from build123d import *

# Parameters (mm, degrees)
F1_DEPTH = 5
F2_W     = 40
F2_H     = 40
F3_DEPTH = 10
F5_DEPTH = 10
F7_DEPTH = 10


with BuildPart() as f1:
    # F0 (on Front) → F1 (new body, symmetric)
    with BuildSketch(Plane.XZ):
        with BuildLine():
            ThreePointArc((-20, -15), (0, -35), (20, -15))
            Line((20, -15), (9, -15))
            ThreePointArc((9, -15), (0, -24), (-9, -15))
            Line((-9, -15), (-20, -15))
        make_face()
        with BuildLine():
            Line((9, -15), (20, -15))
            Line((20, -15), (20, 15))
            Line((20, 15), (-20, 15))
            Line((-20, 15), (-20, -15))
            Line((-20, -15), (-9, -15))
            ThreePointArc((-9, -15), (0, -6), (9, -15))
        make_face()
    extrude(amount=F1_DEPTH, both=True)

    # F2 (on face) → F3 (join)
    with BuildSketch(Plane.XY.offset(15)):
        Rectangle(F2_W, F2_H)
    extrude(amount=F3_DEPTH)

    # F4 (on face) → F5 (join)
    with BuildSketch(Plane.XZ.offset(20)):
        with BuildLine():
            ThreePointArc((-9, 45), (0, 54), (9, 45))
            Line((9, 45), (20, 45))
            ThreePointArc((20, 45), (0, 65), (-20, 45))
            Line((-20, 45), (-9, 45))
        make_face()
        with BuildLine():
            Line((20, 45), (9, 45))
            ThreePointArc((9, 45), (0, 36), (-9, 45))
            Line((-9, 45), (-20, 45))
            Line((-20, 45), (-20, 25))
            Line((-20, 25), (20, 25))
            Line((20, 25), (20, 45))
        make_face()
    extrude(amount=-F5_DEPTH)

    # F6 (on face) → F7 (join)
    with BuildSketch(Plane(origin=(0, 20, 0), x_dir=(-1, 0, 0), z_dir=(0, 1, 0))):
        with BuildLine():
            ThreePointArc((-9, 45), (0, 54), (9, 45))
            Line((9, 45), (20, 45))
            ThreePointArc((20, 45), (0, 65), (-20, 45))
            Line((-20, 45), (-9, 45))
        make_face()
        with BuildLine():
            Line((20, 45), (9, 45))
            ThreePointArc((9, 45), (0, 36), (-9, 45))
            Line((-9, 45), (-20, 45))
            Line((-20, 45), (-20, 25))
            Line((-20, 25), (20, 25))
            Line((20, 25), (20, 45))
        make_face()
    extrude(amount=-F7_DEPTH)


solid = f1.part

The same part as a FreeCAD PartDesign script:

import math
import FreeCAD as App
import Part
import Sketcher
from FreeCAD import Vector
Q = App.Units.Quantity

doc = App.newDocument("Part")
params = doc.addObject("Spreadsheet::Sheet", "Params")
for row, (alias, value) in enumerate([
    ("sketch1_diameter", "18 mm"),
    ("sketch1_radius", "20 mm"),
    ("sketch1_height", "30 mm"),
    ("pad1_length", "10 mm"),
    ("sketch2_width", "40 mm"),
    ("pad2_length", "10 mm"),
    ("sketch3_diameter", "18 mm"),
    ("sketch3_radius", "20 mm"),
    ("sketch3_height", "20 mm"),
    ("pad3_length", "10 mm"),
    ("sketch4_diameter", "18 mm"),
    ("sketch4_radius", "20 mm"),
    ("sketch4_height", "20 mm"),
    ("pad4_length", "10 mm"),
], start=1):
    params.set(f"A{row}", alias)
    params.set(f"B{row}", "=" + value)
    params.setAlias(f"B{row}", alias)

body = doc.addObject("PartDesign::Body", "Body")

# Sketch on XZ plane
sketch1 = body.newObject("Sketcher::SketchObject", "Sketch")
sketch1.AttachmentSupport = (doc.getObject("XZ_Plane"), [""])
sketch1.MapMode = "FlatFace"
sketch1.addGeometry(Part.ArcOfCircle(Part.Circle(Vector(0, -15, 0), Vector(0, 0, 1), 20), math.radians(180), math.radians(360)), False)
sketch1.addGeometry(Part.LineSegment(Vector(20, -15, 0), Vector(20, 15, 0)), False)
sketch1.addGeometry(Part.LineSegment(Vector(20, 15, 0), Vector(-20, 15, 0)), False)
sketch1.addGeometry(Part.LineSegment(Vector(-20, 15, 0), Vector(-20, -15, 0)), False)
sketch1.addGeometry(Part.Circle(Vector(0, -15, 0), Vector(0, 0, 1), 9), False)
sketch1.addConstraint(Sketcher.Constraint("Tangent", 0, 2, 1, 1))
sketch1.addConstraint(Sketcher.Constraint("Coincident", 1, 2, 2, 1))
sketch1.addConstraint(Sketcher.Constraint("Coincident", 2, 2, 3, 1))
sketch1.addConstraint(Sketcher.Constraint("Tangent", 3, 2, 0, 1))
sketch1.addConstraint(Sketcher.Constraint("Vertical", 1))
sketch1.addConstraint(Sketcher.Constraint("Horizontal", 2))
sketch1.addConstraint(Sketcher.Constraint("Vertical", 3))
sketch1.addConstraint(Sketcher.Constraint("Coincident", 4, 3, 0, 3))
sketch1.addConstraint(Sketcher.Constraint("Symmetric", 0, 2, 2, 2, -1, 1))
sketch1.addConstraint(Sketcher.Constraint("Diameter", 4, Q("18 mm")))
sketch1.addConstraint(Sketcher.Constraint("Radius", 0, Q("20 mm")))
sketch1.addConstraint(Sketcher.Constraint("DistanceY", 1, 1, 1, 2, Q("30 mm")))
sketch1.setExpression("Constraints[9]", "Params.sketch1_diameter")
sketch1.setExpression("Constraints[10]", "Params.sketch1_radius")
sketch1.setExpression("Constraints[11]", "Params.sketch1_height")
pad1 = body.newObject("PartDesign::Pad", "Pad")
pad1.Profile = sketch1
pad1.setExpression("Length", "Params.pad1_length")
pad1.Midplane = True

# Sketch on XY plane
sketch2 = body.newObject("Sketcher::SketchObject", "Sketch001")
sketch2.AttachmentSupport = (doc.getObject("XY_Plane"), [""])
sketch2.MapMode = "FlatFace"
sketch2.AttachmentOffset = App.Placement(Vector(0, 0, 15), App.Rotation())
sketch2.addGeometry(Part.LineSegment(Vector(-20, 20, 0), Vector(-20, -20, 0)), False)
sketch2.addGeometry(Part.LineSegment(Vector(-20, -20, 0), Vector(20, -20, 0)), False)
sketch2.addGeometry(Part.LineSegment(Vector(20, -20, 0), Vector(20, 20, 0)), False)
sketch2.addGeometry(Part.LineSegment(Vector(20, 20, 0), Vector(-20, 20, 0)), False)
sketch2.addConstraint(Sketcher.Constraint("Coincident", 0, 2, 1, 1))
sketch2.addConstraint(Sketcher.Constraint("Coincident", 1, 2, 2, 1))
sketch2.addConstraint(Sketcher.Constraint("Coincident", 2, 2, 3, 1))
sketch2.addConstraint(Sketcher.Constraint("Coincident", 3, 2, 0, 1))
sketch2.addConstraint(Sketcher.Constraint("Vertical", 0))
sketch2.addConstraint(Sketcher.Constraint("Horizontal", 1))
sketch2.addConstraint(Sketcher.Constraint("Vertical", 2))
sketch2.addConstraint(Sketcher.Constraint("Horizontal", 3))
sketch2.addConstraint(Sketcher.Constraint("Symmetric", 0, 2, 2, 2, -1, 1))
sketch2.addConstraint(Sketcher.Constraint("Equal", 3, 0))
sketch2.addConstraint(Sketcher.Constraint("DistanceX", 1, 1, 1, 2, Q("40 mm")))
sketch2.setExpression("Constraints[10]", "Params.sketch2_width")
pad2 = body.newObject("PartDesign::Pad", "Pad001")
pad2.Profile = sketch2
pad2.setExpression("Length", "Params.pad2_length")

# Sketch on XZ plane
sketch3 = body.newObject("Sketcher::SketchObject", "Sketch002")
sketch3.AttachmentSupport = (doc.getObject("XZ_Plane"), [""])
sketch3.MapMode = "FlatFace"
sketch3.AttachmentOffset = App.Placement(Vector(0, 0, 20), App.Rotation())
sketch3.addGeometry(Part.ArcOfCircle(Part.Circle(Vector(0, 45, 0), Vector(0, 0, 1), 20), math.radians(0), math.radians(180)), False)
sketch3.addGeometry(Part.LineSegment(Vector(-20, 45, 0), Vector(-20, 25, 0)), False)
sketch3.addGeometry(Part.LineSegment(Vector(-20, 25, 0), Vector(20, 25, 0)), False)
sketch3.addGeometry(Part.LineSegment(Vector(20, 25, 0), Vector(20, 45, 0)), False)
sketch3.addGeometry(Part.Circle(Vector(0, 45, 0), Vector(0, 0, 1), 9), False)
sketch3.addConstraint(Sketcher.Constraint("Tangent", 0, 2, 1, 1))
sketch3.addConstraint(Sketcher.Constraint("Coincident", 1, 2, 2, 1))
sketch3.addConstraint(Sketcher.Constraint("Coincident", 2, 2, 3, 1))
sketch3.addConstraint(Sketcher.Constraint("Tangent", 3, 2, 0, 1))
sketch3.addConstraint(Sketcher.Constraint("Vertical", 1))
sketch3.addConstraint(Sketcher.Constraint("Horizontal", 2))
sketch3.addConstraint(Sketcher.Constraint("Vertical", 3))
sketch3.addConstraint(Sketcher.Constraint("Coincident", 4, 3, 0, 3))
sketch3.addConstraint(Sketcher.Constraint("PointOnObject", 0, 3, -2))
sketch3.addConstraint(Sketcher.Constraint("Diameter", 4, Q("18 mm")))
sketch3.addConstraint(Sketcher.Constraint("Radius", 0, Q("20 mm")))
sketch3.addConstraint(Sketcher.Constraint("DistanceY", 1, 2, 1, 1, Q("20 mm")))
sketch3.addConstraint(Sketcher.Constraint("DistanceY", -1, 1, 0, 3, Q("45 mm")))
sketch3.setExpression("Constraints[9]", "Params.sketch3_diameter")
sketch3.setExpression("Constraints[10]", "Params.sketch3_radius")
sketch3.setExpression("Constraints[11]", "Params.sketch3_height")
pad3 = body.newObject("PartDesign::Pad", "Pad002")
pad3.Profile = sketch3
pad3.setExpression("Length", "Params.pad3_length")
pad3.Reversed = True

# Sketch on XZ plane
sketch4 = body.newObject("Sketcher::SketchObject", "Sketch003")
sketch4.AttachmentSupport = (doc.getObject("XZ_Plane"), [""])
sketch4.MapMode = "FlatFace"
sketch4.AttachmentOffset = App.Placement(Vector(0, 0, -20), App.Rotation())
sketch4.addGeometry(Part.ArcOfCircle(Part.Circle(Vector(0, 45, 0), Vector(0, 0, 1), 20), math.radians(0), math.radians(180)), False)
sketch4.addGeometry(Part.LineSegment(Vector(20, 45, 0), Vector(20, 25, 0)), False)
sketch4.addGeometry(Part.LineSegment(Vector(20, 25, 0), Vector(-20, 25, 0)), False)
sketch4.addGeometry(Part.LineSegment(Vector(-20, 25, 0), Vector(-20, 45, 0)), False)
sketch4.addGeometry(Part.Circle(Vector(0, 45, 0), Vector(0, 0, 1), 9), False)
sketch4.addConstraint(Sketcher.Constraint("Tangent", 0, 1, 1, 1))
sketch4.addConstraint(Sketcher.Constraint("Coincident", 1, 2, 2, 1))
sketch4.addConstraint(Sketcher.Constraint("Coincident", 2, 2, 3, 1))
sketch4.addConstraint(Sketcher.Constraint("Tangent", 3, 2, 0, 2))
sketch4.addConstraint(Sketcher.Constraint("Vertical", 1))
sketch4.addConstraint(Sketcher.Constraint("Horizontal", 2))
sketch4.addConstraint(Sketcher.Constraint("Vertical", 3))
sketch4.addConstraint(Sketcher.Constraint("Coincident", 4, 3, 0, 3))
sketch4.addConstraint(Sketcher.Constraint("PointOnObject", 0, 3, -2))
sketch4.addConstraint(Sketcher.Constraint("Diameter", 4, Q("18 mm")))
sketch4.addConstraint(Sketcher.Constraint("Radius", 0, Q("20 mm")))
sketch4.addConstraint(Sketcher.Constraint("DistanceY", 1, 2, 1, 1, Q("20 mm")))
sketch4.addConstraint(Sketcher.Constraint("DistanceY", -1, 1, 0, 3, Q("45 mm")))
sketch4.setExpression("Constraints[9]", "Params.sketch4_diameter")
sketch4.setExpression("Constraints[10]", "Params.sketch4_radius")
sketch4.setExpression("Constraints[11]", "Params.sketch4_height")
pad4 = body.newObject("PartDesign::Pad", "Pad003")
pad4.Profile = sketch4
pad4.setExpression("Length", "Params.pad4_length")

doc.recompute()
